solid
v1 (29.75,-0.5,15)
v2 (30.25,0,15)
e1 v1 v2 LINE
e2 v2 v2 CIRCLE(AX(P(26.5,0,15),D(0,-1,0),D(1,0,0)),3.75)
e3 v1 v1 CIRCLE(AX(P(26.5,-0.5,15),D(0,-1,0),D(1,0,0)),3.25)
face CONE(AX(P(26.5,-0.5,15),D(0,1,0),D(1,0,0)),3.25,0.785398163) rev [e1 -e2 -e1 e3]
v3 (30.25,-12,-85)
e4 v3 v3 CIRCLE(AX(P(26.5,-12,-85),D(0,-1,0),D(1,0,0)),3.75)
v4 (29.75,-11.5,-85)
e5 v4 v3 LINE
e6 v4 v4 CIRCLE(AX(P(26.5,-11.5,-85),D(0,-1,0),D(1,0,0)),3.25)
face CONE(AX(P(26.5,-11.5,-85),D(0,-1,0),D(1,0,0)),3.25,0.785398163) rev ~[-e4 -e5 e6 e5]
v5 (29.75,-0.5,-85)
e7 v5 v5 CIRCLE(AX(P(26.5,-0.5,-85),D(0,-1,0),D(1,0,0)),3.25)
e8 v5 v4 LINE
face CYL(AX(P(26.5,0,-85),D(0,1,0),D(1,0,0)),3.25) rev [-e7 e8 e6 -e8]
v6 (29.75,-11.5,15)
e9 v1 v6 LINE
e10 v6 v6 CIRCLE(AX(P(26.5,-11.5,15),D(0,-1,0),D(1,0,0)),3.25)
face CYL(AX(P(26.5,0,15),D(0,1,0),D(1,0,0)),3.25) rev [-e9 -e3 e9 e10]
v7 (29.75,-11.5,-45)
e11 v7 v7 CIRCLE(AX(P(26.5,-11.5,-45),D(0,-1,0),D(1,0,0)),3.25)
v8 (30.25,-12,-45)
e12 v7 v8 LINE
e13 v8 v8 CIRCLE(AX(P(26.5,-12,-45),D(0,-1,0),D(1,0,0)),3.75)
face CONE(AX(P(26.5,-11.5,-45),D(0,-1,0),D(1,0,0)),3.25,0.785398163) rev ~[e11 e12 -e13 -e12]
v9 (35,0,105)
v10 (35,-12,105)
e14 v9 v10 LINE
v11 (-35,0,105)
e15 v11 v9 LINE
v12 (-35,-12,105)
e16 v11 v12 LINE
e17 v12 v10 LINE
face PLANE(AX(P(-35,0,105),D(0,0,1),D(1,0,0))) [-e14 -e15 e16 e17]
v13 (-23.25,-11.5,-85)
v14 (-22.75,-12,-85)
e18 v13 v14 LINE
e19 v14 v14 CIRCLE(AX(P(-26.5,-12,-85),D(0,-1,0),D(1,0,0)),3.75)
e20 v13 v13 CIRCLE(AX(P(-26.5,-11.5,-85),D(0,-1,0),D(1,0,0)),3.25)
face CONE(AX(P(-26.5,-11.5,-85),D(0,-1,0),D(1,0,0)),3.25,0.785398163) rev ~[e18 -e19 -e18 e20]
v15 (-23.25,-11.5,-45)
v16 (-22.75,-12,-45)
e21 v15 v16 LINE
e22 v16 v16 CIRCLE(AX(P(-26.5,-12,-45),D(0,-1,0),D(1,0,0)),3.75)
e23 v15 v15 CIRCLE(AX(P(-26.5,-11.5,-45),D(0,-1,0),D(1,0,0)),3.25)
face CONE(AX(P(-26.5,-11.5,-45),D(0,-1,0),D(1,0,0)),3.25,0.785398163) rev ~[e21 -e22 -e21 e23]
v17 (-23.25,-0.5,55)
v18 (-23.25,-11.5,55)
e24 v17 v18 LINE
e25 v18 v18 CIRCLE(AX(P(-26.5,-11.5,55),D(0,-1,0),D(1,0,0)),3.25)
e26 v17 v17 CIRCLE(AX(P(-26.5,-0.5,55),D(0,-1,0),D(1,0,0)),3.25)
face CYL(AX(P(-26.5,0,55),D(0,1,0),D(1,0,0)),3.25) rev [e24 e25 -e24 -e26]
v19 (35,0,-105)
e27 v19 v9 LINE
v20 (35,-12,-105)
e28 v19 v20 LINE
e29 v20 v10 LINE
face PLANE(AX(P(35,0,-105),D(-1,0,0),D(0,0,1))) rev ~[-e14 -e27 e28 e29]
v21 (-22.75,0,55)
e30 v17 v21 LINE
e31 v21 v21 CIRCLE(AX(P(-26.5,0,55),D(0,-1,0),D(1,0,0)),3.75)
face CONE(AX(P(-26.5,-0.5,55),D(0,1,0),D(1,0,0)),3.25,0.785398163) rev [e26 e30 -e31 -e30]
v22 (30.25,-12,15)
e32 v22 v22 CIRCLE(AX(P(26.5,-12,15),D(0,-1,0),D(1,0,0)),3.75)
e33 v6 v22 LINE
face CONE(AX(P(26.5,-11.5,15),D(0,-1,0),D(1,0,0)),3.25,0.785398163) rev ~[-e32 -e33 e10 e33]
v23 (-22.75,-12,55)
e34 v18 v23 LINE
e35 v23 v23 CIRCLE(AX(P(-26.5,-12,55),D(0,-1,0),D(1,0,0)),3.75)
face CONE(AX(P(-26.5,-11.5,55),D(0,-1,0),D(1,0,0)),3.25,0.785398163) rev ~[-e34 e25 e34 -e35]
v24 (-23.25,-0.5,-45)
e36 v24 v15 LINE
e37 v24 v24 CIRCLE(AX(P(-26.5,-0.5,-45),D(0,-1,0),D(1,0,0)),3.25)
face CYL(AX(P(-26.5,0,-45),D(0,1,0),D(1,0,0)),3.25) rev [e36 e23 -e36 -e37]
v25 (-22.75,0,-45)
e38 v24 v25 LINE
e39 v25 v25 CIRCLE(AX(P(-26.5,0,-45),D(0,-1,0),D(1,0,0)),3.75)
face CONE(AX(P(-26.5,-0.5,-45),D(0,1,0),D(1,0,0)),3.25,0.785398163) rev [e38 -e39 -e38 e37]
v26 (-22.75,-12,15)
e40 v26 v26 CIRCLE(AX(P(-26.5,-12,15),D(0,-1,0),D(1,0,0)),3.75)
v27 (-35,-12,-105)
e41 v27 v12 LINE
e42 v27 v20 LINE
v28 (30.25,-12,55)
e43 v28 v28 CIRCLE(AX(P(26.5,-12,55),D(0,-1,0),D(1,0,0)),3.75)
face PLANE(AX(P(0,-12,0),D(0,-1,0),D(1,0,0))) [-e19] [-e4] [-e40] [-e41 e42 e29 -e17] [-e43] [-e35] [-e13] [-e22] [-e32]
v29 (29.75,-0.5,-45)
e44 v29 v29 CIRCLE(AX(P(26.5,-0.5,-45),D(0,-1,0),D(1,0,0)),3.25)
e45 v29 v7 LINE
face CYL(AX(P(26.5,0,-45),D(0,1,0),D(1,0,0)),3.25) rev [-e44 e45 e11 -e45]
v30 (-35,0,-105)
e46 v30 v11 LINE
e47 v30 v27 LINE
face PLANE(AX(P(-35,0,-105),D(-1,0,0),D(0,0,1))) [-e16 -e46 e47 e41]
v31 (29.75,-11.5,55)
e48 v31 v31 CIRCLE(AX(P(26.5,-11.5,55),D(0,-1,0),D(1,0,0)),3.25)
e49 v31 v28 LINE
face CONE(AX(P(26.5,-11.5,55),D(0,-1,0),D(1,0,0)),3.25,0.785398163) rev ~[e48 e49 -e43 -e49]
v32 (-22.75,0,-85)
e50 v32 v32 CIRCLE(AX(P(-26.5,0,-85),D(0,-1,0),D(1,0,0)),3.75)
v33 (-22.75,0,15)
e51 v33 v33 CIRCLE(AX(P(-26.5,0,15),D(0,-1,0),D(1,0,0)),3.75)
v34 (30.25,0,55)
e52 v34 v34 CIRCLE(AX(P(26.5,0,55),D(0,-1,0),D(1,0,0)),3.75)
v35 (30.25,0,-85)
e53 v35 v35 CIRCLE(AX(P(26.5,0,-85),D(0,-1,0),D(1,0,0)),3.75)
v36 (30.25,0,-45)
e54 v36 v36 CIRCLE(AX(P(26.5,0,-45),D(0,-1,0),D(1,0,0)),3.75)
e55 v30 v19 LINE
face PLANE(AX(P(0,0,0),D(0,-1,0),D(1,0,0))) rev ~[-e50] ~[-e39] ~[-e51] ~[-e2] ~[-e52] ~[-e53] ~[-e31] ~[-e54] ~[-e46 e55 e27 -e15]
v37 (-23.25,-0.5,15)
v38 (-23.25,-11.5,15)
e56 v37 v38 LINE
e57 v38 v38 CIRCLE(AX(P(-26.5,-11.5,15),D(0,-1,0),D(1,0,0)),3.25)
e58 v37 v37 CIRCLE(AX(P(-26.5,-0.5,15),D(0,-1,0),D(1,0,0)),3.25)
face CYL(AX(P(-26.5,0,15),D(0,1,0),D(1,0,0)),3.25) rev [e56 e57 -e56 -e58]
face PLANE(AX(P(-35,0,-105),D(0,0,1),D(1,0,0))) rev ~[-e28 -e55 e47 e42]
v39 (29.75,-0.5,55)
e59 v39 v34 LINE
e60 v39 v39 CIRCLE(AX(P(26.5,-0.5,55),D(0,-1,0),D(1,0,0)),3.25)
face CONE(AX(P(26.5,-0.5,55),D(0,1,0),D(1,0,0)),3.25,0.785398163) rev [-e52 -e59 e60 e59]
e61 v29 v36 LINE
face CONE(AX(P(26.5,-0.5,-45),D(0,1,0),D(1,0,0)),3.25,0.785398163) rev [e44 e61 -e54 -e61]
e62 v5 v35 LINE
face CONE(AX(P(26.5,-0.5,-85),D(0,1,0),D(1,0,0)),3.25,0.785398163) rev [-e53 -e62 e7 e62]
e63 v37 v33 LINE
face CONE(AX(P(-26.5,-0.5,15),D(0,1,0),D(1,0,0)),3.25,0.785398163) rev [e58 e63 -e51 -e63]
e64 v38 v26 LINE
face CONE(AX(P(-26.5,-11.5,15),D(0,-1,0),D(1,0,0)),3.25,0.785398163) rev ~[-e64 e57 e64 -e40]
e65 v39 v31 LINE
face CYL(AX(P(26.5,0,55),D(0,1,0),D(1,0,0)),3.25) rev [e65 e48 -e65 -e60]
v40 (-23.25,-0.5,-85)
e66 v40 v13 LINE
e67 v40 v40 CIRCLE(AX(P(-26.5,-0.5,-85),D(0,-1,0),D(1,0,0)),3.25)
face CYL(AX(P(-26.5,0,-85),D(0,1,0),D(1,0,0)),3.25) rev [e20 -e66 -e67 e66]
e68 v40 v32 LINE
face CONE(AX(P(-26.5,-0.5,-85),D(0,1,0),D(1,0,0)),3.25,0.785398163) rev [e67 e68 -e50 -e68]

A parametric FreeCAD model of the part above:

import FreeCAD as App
import Part
import Sketcher
from FreeCAD import Vector
Q = App.Units.Quantity


def edges_at(feature, points):
    """Names of the edges that pass closest to the given points."""
    edges = feature.Shape.Edges
    near = lambda p: min(range(len(edges)), key=lambda i: edges[i].distToShape(Part.Vertex(*p))[0])
    return sorted({f"Edge{near(p) + 1}" for p in points})


def add_polygon(sketch, points):
    """Adds a closed chain of lines whose ends are joined by coincident constraints."""
    first, n = sketch.GeometryCount, len(points)
    for a, b in zip(points, points[1:] + points[:1]):
        sketch.addGeometry(Part.LineSegment(App.Vector(*a, 0), App.Vector(*b, 0)), False)
    for i in range(n):
        sketch.addConstraint(Sketcher.Constraint("Coincident", first + i, 2, first + (i + 1) % n, 1))

doc = App.newDocument("Part")
body = doc.addObject("PartDesign::Body", "Body")

# Sketch on XZ plane
sketch1 = body.newObject("Sketcher::SketchObject", "Sketch")
sketch1.AttachmentSupport = (doc.getObject("XZ_Plane"), [""])
sketch1.MapMode = "FlatFace"
add_polygon(sketch1, [(-35, 105), (-35, -105), (35, -105), (35, 105)])  # lines 0-3
sketch1.addGeometry(Part.Circle(Vector(-26.5, -85, 0), Vector(0, 0, 1), 3.2), False)  # 4
sketch1.addGeometry(Part.Circle(Vector(-26.5, -45, 0), Vector(0, 0, 1), 3.2), False)  # 5
sketch1.addGeometry(Part.Circle(Vector(26.5, -85, 0), Vector(0, 0, 1), 3.2), False)  # 6
sketch1.addGeometry(Part.Circle(Vector(26.5, -45, 0), Vector(0, 0, 1), 3.2), False)  # 7
sketch1.addGeometry(Part.Circle(Vector(-26.5, 15, 0), Vector(0, 0, 1), 3.2), False)  # 8
sketch1.addGeometry(Part.Circle(Vector(-26.5, 55, 0), Vector(0, 0, 1), 3.2), False)  # 9
sketch1.addGeometry(Part.Circle(Vector(26.5, 15, 0), Vector(0, 0, 1), 3.2), False)  # 10
sketch1.addGeometry(Part.Circle(Vector(26.5, 55, 0), Vector(0, 0, 1), 3.2), False)  # 11
sketch1.addConstraint(Sketcher.Constraint("Vertical", 0))
sketch1.addConstraint(Sketcher.Constraint("Horizontal", 1))
sketch1.addConstraint(Sketcher.Constraint("Vertical", 2))
sketch1.addConstraint(Sketcher.Constraint("Horizontal", 3))
sketch1.addConstraint(Sketcher.Constraint("Equal", 4, 5))
sketch1.addConstraint(Sketcher.Constraint("Equal", 5, 6))
sketch1.addConstraint(Sketcher.Constraint("Equal", 6, 7))
sketch1.addConstraint(Sketcher.Constraint("Equal", 7, 8))
sketch1.addConstraint(Sketcher.Constraint("Equal", 8, 9))
sketch1.addConstraint(Sketcher.Constraint("Equal", 9, 10))
sketch1.addConstraint(Sketcher.Constraint("Equal", 10, 11))
sketch1.addConstraint(Sketcher.Constraint("Symmetric", 0, 2, 2, 2, -1, 1))
sketch1.addConstraint(Sketcher.Constraint("Symmetric", 4, 3, 6, 3, -2))
sketch1.addConstraint(Sketcher.Constraint("Symmetric", 5, 3, 7, 3, -2))
sketch1.addConstraint(Sketcher.Constraint("Symmetric", 8, 3, 10, 3, -2))
sketch1.addConstraint(Sketcher.Constraint("Symmetric", 9, 3, 11, 3, -2))
sketch1.addConstraint(Sketcher.Constraint("Vertical", 4, 3, 5, 3))
sketch1.addConstraint(Sketcher.Constraint("Vertical", 5, 3, 8, 3))
sketch1.addConstraint(Sketcher.Constraint("Vertical", 8, 3, 9, 3))
sketch1.addConstraint(Sketcher.Constraint("Diameter", 4, Q("6.5 mm")))
sketch1.addConstraint(Sketcher.Constraint("DistanceX", 1, 1, 1, 2, Q("70 mm")))
sketch1.addConstraint(Sketcher.Constraint("DistanceY", 0, 2, 0, 1, Q("210 mm")))
sketch1.addConstraint(Sketcher.Constraint("DistanceY", 4, 3, -1, 1, Q("85 mm")))
sketch1.addConstraint(Sketcher.Constraint("DistanceY", 5, 3, -1, 1, Q("45 mm")))
sketch1.addConstraint(Sketcher.Constraint("DistanceY", -1, 1, 8, 3, Q("15 mm")))
sketch1.addConstraint(Sketcher.Constraint("DistanceY", -1, 1, 9, 3, Q("55 mm")))
sketch1.addConstraint(Sketcher.Constraint("DistanceX", 4, 3, 6, 3, Q("53 mm")))
pad1 = body.newObject("PartDesign::Pad", "Pad")
pad1.Profile = sketch1
pad1.Length = 12
doc.recompute()

chamfer = body.newObject("PartDesign::Chamfer", "Chamfer")
chamfer.Base = (pad1, edges_at(pad1, [
    (-23.25, -6, 55),
    (-29.75, 0, 55),
    (-29.75, -12, 55),
    (-23.25, -6, 15),
    (-29.75, 0, 15),
    (-29.75, -12, 15),
    (29.75, -6, 55),
    (23.25, 0, 55),
    (23.25, -12, 55),
    (29.75, -6, 15),
    (23.25, 0, 15),
    (23.25, -12, 15),
    (-23.25, -6, -45),
    (-29.75, 0, -45),
    (-29.75, -12, -45),
    (-23.25, -6, -85),
    (-29.75, 0, -85),
    (-29.75, -12, -85),
    (29.75, -6, -85),
    (23.25, 0, -85),
    (23.25, -12, -85),
    (29.75, -6, -45),
    (23.25, 0, -45),
    (23.25, -12, -45),
]))
chamfer.Size = 0.5

doc.recompute()
